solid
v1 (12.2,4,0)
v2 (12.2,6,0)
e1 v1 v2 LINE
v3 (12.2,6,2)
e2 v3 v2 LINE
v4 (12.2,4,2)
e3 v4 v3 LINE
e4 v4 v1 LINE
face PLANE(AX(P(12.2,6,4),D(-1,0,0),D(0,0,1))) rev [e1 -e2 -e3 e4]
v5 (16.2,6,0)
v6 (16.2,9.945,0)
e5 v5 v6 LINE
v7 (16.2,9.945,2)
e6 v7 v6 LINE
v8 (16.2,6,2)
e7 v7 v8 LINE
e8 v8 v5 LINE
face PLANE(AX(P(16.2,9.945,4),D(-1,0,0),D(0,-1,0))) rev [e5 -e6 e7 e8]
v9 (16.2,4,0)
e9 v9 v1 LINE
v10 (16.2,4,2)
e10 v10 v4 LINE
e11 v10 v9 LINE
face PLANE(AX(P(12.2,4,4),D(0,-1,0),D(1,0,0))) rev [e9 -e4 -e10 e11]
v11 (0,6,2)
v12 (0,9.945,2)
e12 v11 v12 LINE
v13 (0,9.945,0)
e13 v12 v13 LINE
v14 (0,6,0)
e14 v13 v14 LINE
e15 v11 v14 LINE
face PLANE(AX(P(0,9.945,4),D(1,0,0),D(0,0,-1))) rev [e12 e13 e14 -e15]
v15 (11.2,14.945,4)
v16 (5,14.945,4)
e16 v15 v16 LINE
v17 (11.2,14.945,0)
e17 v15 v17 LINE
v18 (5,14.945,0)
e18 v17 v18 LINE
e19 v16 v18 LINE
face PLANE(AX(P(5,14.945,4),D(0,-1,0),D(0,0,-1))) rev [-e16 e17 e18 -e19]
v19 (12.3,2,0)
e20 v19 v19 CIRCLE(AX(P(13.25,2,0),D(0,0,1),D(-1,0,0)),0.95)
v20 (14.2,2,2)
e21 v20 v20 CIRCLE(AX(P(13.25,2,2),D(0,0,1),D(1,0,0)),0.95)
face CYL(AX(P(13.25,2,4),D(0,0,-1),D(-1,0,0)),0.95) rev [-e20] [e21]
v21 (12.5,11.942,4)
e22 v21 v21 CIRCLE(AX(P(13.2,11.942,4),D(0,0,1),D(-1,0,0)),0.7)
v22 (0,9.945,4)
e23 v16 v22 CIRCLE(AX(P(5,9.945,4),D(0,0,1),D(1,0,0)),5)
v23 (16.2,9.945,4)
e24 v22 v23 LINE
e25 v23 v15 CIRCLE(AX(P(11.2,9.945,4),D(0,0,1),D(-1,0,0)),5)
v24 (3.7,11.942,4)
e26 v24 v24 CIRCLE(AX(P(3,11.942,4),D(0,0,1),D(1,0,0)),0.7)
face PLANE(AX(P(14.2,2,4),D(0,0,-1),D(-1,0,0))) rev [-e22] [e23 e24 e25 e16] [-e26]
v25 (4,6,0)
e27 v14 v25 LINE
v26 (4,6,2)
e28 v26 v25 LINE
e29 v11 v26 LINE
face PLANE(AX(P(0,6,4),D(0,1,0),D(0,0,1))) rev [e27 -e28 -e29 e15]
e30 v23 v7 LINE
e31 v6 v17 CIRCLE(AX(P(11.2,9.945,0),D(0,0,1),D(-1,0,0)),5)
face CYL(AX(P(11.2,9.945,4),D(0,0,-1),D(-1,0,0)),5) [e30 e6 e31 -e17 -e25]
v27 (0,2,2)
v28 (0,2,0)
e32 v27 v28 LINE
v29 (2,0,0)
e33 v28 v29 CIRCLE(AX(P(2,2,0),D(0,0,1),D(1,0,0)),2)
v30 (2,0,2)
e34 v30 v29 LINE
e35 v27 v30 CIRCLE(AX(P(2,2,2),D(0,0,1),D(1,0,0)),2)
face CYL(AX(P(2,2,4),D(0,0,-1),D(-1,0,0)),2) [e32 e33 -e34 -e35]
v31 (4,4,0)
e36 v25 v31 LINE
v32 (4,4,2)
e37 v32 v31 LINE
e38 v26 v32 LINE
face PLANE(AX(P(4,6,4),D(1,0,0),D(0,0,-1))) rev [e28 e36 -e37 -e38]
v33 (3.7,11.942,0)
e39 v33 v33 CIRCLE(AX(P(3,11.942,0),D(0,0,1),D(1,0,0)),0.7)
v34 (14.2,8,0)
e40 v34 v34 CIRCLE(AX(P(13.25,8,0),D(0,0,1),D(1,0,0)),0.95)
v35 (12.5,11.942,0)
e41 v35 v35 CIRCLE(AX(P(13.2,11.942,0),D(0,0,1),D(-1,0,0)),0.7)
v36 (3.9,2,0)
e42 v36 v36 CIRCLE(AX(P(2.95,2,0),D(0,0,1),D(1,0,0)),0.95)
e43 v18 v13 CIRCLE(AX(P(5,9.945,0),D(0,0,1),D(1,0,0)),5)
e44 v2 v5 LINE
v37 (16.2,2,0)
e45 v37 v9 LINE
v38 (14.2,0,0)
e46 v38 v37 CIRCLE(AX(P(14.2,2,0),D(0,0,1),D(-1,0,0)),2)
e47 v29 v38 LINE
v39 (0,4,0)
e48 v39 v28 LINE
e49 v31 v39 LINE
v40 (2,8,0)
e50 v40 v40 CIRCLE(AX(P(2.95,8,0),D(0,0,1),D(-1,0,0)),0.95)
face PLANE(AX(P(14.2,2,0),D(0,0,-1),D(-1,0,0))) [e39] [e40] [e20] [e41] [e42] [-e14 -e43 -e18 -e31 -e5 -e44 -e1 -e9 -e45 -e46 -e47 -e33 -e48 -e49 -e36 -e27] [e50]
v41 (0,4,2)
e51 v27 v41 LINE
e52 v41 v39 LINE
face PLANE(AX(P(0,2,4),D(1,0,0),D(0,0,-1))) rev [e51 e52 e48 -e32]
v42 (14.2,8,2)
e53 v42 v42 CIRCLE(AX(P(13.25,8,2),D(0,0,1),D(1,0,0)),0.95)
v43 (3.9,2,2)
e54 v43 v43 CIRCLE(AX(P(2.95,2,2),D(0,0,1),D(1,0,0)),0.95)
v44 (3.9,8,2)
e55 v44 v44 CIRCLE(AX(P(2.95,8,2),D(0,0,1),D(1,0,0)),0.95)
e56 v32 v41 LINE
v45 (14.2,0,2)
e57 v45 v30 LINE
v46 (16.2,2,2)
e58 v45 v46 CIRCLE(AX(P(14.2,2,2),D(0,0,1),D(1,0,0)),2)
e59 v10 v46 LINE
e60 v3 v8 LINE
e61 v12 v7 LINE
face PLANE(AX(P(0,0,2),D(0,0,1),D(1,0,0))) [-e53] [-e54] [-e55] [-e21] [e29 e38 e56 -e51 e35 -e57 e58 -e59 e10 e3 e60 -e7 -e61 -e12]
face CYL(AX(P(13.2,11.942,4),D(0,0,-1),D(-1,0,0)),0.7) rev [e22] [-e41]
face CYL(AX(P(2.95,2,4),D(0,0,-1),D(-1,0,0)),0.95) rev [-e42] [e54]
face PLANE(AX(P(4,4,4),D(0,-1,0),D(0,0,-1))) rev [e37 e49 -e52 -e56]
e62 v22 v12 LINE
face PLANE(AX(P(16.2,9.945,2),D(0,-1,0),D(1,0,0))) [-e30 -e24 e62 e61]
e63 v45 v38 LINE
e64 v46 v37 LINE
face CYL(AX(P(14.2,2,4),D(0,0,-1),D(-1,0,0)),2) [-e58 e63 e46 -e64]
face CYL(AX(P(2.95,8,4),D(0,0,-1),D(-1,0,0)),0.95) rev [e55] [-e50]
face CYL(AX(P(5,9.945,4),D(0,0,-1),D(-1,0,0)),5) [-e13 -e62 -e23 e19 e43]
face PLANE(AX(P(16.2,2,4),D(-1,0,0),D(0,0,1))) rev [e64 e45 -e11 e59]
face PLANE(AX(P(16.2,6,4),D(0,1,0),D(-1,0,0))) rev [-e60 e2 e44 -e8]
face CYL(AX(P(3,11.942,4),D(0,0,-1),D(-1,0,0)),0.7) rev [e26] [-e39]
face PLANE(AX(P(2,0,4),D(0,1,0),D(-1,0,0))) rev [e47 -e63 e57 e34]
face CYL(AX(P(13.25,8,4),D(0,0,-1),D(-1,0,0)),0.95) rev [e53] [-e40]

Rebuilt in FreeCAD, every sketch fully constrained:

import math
import FreeCAD as App
import Part
import Sketcher
Q = App.Units.Quantity

doc = App.newDocument("Part")
body = doc.addObject("PartDesign::Body", "Body")

# Sketch on XY plane
sketch1 = doc.addObject("Sketcher::SketchObject", "Sketch")
body.addObject(sketch1)
sketch1.AttachmentSupport = (doc.XY_Plane, [""])
sketch1.MapMode = "FlatFace"
sketch1.addGeometry(Part.LineSegment(App.Vector(0, 9.9, 0), App.Vector(0, 6, 0)), False)
sketch1.addGeometry(Part.LineSegment(App.Vector(0, 6, 0), App.Vector(4, 6, 0)), False)
sketch1.addGeometry(Part.LineSegment(App.Vector(4, 6, 0), App.Vector(4, 4, 0)), False)
sketch1.addGeometry(Part.LineSegment(App.Vector(4, 4, 0), App.Vector(0, 4, 0)), False)
sketch1.addGeometry(Part.LineSegment(App.Vector(0, 4, 0), App.Vector(0, 2, 0)), False)
sketch1.addGeometry(Part.ArcOfCircle(Part.Circle(App.Vector(2, 2, 0), App.Vector(0, 0, 1), 2), math.radians(-180), math.radians(-90)), False)
sketch1.addGeometry(Part.LineSegment(App.Vector(2, 0, 0), App.Vector(14.2, 0, 0)), False)
sketch1.addGeometry(Part.ArcOfCircle(Part.Circle(App.Vector(14.2, 2, 0), App.Vector(0, 0, 1), 2), math.radians(-90), math.radians(0)), False)
sketch1.addGeometry(Part.LineSegment(App.Vector(16.2, 2, 0), App.Vector(16.2, 4, 0)), False)
sketch1.addGeometry(Part.LineSegment(App.Vector(16.2, 4, 0), App.Vector(12.2, 4, 0)), False)
sketch1.addGeometry(Part.LineSegment(App.Vector(12.2, 4, 0), App.Vector(12.2, 6, 0)), False)
sketch1.addGeometry(Part.LineSegment(App.Vector(12.2, 6, 0), App.Vector(16.2, 6, 0)), False)
sketch1.addGeometry(Part.LineSegment(App.Vector(16.2, 6, 0), App.Vector(16.2, 9.9, 0)), False)
sketch1.addGeometry(Part.ArcOfCircle(Part.Circle(App.Vector(11.2, 9.9, 0), App.Vector(0, 0, 1), 5), math.radians(0), math.radians(90)), False)
sketch1.addGeometry(Part.LineSegment(App.Vector(11.2, 14.9, 0), App.Vector(5, 14.9, 0)), False)
sketch1.addGeometry(Part.ArcOfCircle(Part.Circle(App.Vector(5, 9.9, 0), App.Vector(0, 0, 1), 5), math.radians(90), math.radians(180)), False)
sketch1.addGeometry(Part.Circle(App.Vector(3, 2, 0), App.Vector(0, 0, 1), 0.9), False)
sketch1.addGeometry(Part.Circle(App.Vector(13.2, 2, 0), App.Vector(0, 0, 1), 0.9), False)
sketch1.addGeometry(Part.Circle(App.Vector(3, 8, 0), App.Vector(0, 0, 1), 0.9), False)
sketch1.addGeometry(Part.Circle(App.Vector(3, 11.9, 0), App.Vector(0, 0, 1), 0.7), False)
sketch1.addGeometry(Part.Circle(App.Vector(13.2, 8, 0), App.Vector(0, 0, 1), 0.9), False)
sketch1.addGeometry(Part.Circle(App.Vector(13.2, 11.9, 0), App.Vector(0, 0, 1), 0.7), False)
sketch1.addConstraint(Sketcher.Constraint("Coincident", 0, 2, 1, 1))
sketch1.addConstraint(Sketcher.Constraint("Coincident", 1, 2, 2, 1))
sketch1.addConstraint(Sketcher.Constraint("Coincident", 2, 2, 3, 1))
sketch1.addConstraint(Sketcher.Constraint("Coincident", 3, 2, 4, 1))
sketch1.addConstraint(Sketcher.Constraint("Tangent", 4, 2, 5, 1))
sketch1.addConstraint(Sketcher.Constraint("Tangent", 5, 2, 6, 1))
sketch1.addConstraint(Sketcher.Constraint("Tangent", 6, 2, 7, 1))
sketch1.addConstraint(Sketcher.Constraint("Tangent", 7, 2, 8, 1))
sketch1.addConstraint(Sketcher.Constraint("Coincident", 8, 2, 9, 1))
sketch1.addConstraint(Sketcher.Constraint("Coincident", 9, 2, 10, 1))
sketch1.addConstraint(Sketcher.Constraint("Coincident", 10, 2, 11, 1))
sketch1.addConstraint(Sketcher.Constraint("Coincident", 11, 2, 12, 1))
sketch1.addConstraint(Sketcher.Constraint("Tangent", 12, 2, 13, 1))
sketch1.addConstraint(Sketcher.Constraint("Tangent", 13, 2, 14, 1))
sketch1.addConstraint(Sketcher.Constraint("Tangent", 14, 2, 15, 1))
sketch1.addConstraint(Sketcher.Constraint("Tangent", 15, 2, 0, 1))
sketch1.addConstraint(Sketcher.Constraint("Vertical", 0))
sketch1.addConstraint(Sketcher.Constraint("Horizontal", 1))
sketch1.addConstraint(Sketcher.Constraint("Vertical", 2))
sketch1.addConstraint(Sketcher.Constraint("Horizontal", 3))
sketch1.addConstraint(Sketcher.Constraint("Vertical", 4))
sketch1.addConstraint(Sketcher.Constraint("Horizontal", 6))
sketch1.addConstraint(Sketcher.Constraint("Vertical", 8))
sketch1.addConstraint(Sketcher.Constraint("Horizontal", 9))
sketch1.addConstraint(Sketcher.Constraint("Vertical", 10))
sketch1.addConstraint(Sketcher.Constraint("Horizontal", 11))
sketch1.addConstraint(Sketcher.Constraint("Vertical", 12))
sketch1.addConstraint(Sketcher.Constraint("Horizontal", 14))
sketch1.addConstraint(Sketcher.Constraint("Equal", 5, 7))
sketch1.addConstraint(Sketcher.Constraint("Equal", 13, 15))
sketch1.addConstraint(Sketcher.Constraint("Equal", 16, 17))
sketch1.addConstraint(Sketcher.Constraint("Equal", 17, 18))
sketch1.addConstraint(Sketcher.Constraint("Equal", 18, 20))
sketch1.addConstraint(Sketcher.Constraint("Equal", 19, 21))
sketch1.addConstraint(Sketcher.Constraint("PointOnObject", 0, 2, -2))
sketch1.addConstraint(Sketcher.Constraint("PointOnObject", 3, 2, -2))
sketch1.addConstraint(Sketcher.Constraint("PointOnObject", 5, 2, -1))
sketch1.addConstraint(Sketcher.Constraint("Horizontal", 7, 3, 16, 3))
sketch1.addConstraint(Sketcher.Constraint("Horizontal", 16, 3, 17, 3))
sketch1.addConstraint(Sketcher.Constraint("Horizontal", 18, 3, 20, 3))
sketch1.addConstraint(Sketcher.Constraint("Horizontal", 19, 3, 21, 3))
sketch1.addConstraint(Sketcher.Constraint("Horizontal", 3, 2, 8, 2))
sketch1.addConstraint(Sketcher.Constraint("Horizontal", 1, 2, 10, 2))
sketch1.addConstraint(Sketcher.Constraint("Vertical", 16, 3, 18, 3))
sketch1.addConstraint(Sketcher.Constraint("Vertical", 17, 3, 20, 3))
sketch1.addConstraint(Sketcher.Constraint("Vertical", 8, 2, 11, 2))
sketch1.addConstraint(Sketcher.Constraint("Equal", 3, 9))
sketch1.addConstraint(Sketcher.Constraint("Equal", 2, 4))
sketch1.addConstraint(Sketcher.Constraint("Radius", 5, Q("2 mm")))
sketch1.addConstraint(Sketcher.Constraint("Radius", 13, Q("5 mm")))
sketch1.addConstraint(Sketcher.Constraint("Diameter", 16, Q("1.9 mm")))
sketch1.addConstraint(Sketcher.Constraint("Diameter", 19, Q("1.4 mm")))
sketch1.addConstraint(Sketcher.Constraint("DistanceX", 1, 1, 1, 2, Q("4 mm")))
sketch1.addConstraint(Sketcher.Constraint("DistanceY", 2, 2, 2, 1, Q("2 mm")))
sketch1.addConstraint(Sketcher.Constraint("DistanceX", 6, 1, 6, 2, Q("12.2 mm")))
sketch1.addConstraint(Sketcher.Constraint("DistanceY", -1, 1, 18, 3, Q("8 mm")))
sketch1.addConstraint(Sketcher.Constraint("DistanceX", -1, 1, 19, 3, Q("3 mm")))
sketch1.addConstraint(Sketcher.Constraint("DistanceX", 13, 3, 21, 3, Q("2 mm")))
sketch1.addConstraint(Sketcher.Constraint("DistanceX", 16, 3, 17, 3, Q("10.3 mm")))
sketch1.addConstraint(Sketcher.Constraint("DistanceY", 0, 2, 0, 1, Q("3.945 mm")))
sketch1.addConstraint(Sketcher.Constraint("DistanceX", -1, 1, 16, 3, Q("2.95 mm")))
sketch1.addConstraint(Sketcher.Constraint("DistanceY", -1, 1, 19, 3, Q("11.942 mm")))
pad1 = doc.addObject("PartDesign::Pad", "Pad")
body.addObject(pad1)
pad1.Profile = sketch1
pad1.Length = 4

# Sketch on XY plane
sketch2 = doc.addObject("Sketcher::SketchObject", "Sketch001")
body.addObject(sketch2)
sketch2.AttachmentSupport = (doc.XY_Plane, [""])
sketch2.MapMode = "FlatFace"
sketch2.AttachmentOffset = App.Placement(App.Vector(0, 0, 4), App.Rotation())
sketch2.addGeometry(Part.LineSegment(App.Vector(16, 10, 0), App.Vector(16, 0, 0)), False)
sketch2.addGeometry(Part.LineSegment(App.Vector(16, 0, 0), App.Vector(0, 0, 0)), False)
sketch2.addGeometry(Part.LineSegment(App.Vector(0, 0, 0), App.Vector(0, 10, 0)), False)
sketch2.addGeometry(Part.LineSegment(App.Vector(0, 10, 0), App.Vector(16, 10, 0)), False)
sketch2.addConstraint(Sketcher.Constraint("Coincident", 0, 2, 1, 1))
sketch2.addConstraint(Sketcher.Constraint("Coincident", 1, 2, 2, 1))
sketch2.addConstraint(Sketcher.Constraint("Coincident", 2, 2, 3, 1))
sketch2.addConstraint(Sketcher.Constraint("Coincident", 3, 2, 0, 1))
sketch2.addConstraint(Sketcher.Constraint("Vertical", 0))
sketch2.addConstraint(Sketcher.Constraint("Horizontal", 1))
sketch2.addConstraint(Sketcher.Constraint("Vertical", 2))
sketch2.addConstraint(Sketcher.Constraint("Horizontal", 3))
sketch2.addConstraint(Sketcher.Constraint("Coincident", 1, 2, -1, 1))
sketch2.addConstraint(Sketcher.Constraint("DistanceX", 1, 2, 1, 1, Q("16.2 mm")))
sketch2.addConstraint(Sketcher.Constraint("DistanceY", 0, 2, 0, 1, Q("9.945 mm")))
pocket1 = doc.addObject("PartDesign::Pocket", "Pocket")
body.addObject(pocket1)
pocket1.Profile = sketch2
pocket1.Length = 2

doc.recompute()
